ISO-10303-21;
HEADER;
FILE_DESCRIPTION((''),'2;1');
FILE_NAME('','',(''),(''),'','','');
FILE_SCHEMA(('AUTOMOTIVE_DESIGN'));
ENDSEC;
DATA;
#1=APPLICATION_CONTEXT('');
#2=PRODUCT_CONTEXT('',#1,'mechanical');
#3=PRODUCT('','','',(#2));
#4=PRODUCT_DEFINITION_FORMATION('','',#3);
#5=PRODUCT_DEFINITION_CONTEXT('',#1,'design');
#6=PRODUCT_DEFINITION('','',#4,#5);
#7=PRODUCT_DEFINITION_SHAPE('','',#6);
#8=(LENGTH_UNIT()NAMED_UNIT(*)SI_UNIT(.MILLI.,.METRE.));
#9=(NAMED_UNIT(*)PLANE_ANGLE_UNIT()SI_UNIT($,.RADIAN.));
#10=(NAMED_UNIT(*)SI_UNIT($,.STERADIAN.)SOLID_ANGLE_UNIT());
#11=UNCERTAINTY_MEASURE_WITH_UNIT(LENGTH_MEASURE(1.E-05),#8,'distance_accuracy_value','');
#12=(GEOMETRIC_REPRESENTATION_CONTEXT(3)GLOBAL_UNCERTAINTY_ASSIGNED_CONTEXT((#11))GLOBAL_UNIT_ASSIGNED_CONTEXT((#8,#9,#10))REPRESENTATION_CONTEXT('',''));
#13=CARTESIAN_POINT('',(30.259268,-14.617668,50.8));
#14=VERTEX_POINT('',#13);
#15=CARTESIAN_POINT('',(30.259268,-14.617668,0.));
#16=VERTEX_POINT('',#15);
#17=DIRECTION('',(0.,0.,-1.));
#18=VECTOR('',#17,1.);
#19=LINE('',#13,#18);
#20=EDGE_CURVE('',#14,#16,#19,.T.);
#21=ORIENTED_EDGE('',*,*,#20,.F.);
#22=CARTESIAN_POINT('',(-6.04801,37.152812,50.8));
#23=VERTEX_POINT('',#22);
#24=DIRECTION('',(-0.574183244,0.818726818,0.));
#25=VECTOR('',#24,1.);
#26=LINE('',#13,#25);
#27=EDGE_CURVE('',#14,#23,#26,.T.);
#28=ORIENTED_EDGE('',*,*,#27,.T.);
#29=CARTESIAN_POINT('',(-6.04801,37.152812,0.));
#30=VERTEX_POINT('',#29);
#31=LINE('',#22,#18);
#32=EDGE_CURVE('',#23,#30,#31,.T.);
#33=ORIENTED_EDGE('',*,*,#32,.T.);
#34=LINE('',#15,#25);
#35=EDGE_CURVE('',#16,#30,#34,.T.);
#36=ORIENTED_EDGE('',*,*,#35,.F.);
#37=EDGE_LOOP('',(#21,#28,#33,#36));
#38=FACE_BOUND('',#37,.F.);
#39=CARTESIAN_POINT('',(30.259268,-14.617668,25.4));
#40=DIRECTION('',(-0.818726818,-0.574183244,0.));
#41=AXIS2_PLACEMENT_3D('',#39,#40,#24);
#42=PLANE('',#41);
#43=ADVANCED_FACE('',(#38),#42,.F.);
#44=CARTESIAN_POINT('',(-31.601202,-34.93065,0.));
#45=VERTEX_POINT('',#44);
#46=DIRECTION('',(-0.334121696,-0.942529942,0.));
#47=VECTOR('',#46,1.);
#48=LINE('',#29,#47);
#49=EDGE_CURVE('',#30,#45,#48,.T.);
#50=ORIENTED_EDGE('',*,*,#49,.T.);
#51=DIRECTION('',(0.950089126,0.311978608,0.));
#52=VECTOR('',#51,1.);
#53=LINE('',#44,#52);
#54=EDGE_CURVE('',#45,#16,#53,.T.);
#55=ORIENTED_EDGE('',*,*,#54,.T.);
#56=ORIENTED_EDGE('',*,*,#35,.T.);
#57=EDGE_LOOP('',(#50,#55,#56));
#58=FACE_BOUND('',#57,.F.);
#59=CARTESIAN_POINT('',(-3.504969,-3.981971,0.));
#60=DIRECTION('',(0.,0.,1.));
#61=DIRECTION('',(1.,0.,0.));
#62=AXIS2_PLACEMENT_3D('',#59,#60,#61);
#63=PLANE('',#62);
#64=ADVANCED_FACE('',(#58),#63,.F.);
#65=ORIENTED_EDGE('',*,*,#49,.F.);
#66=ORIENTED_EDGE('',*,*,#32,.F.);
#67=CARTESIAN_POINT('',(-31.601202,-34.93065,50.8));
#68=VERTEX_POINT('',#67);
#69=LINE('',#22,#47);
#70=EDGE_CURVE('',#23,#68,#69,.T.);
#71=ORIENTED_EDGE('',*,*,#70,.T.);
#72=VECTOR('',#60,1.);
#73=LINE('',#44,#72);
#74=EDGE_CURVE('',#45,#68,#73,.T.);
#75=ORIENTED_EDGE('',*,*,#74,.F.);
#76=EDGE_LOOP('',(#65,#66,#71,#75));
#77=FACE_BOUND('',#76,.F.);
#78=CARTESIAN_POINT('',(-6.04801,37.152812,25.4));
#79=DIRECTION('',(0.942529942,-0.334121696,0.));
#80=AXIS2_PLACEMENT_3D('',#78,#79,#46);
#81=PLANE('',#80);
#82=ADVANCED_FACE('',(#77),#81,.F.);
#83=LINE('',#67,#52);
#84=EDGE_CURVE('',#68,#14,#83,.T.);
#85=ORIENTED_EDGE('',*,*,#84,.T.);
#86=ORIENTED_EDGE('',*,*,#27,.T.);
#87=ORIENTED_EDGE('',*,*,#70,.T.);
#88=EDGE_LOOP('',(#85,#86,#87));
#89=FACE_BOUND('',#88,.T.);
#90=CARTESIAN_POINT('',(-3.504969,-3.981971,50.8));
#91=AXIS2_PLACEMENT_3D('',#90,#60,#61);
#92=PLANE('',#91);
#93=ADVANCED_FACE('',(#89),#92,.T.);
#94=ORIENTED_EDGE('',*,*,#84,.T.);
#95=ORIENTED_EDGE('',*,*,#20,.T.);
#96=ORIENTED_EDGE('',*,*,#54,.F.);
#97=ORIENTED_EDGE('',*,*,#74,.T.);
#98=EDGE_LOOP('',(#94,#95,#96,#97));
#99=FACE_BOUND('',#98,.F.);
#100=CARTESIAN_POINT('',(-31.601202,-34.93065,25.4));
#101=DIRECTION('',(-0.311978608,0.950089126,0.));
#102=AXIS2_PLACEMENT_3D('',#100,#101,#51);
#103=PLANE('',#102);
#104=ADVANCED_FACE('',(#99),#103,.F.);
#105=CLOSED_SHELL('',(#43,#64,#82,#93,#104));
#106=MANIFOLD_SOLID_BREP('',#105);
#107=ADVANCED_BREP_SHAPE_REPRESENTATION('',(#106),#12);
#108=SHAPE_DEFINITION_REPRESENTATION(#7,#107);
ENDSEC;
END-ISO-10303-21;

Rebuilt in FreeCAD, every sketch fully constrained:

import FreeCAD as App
import Part
import Sketcher
from FreeCAD import Vector
Q = App.Units.Quantity


def add_polygon(sketch, points):
    """Adds a closed chain of lines whose ends are joined by coincident constraints."""
    first, n = sketch.GeometryCount, len(points)
    for a, b in zip(points, points[1:] + points[:1]):
        sketch.addGeometry(Part.LineSegment(App.Vector(*a, 0), App.Vector(*b, 0)), False)
    for i in range(n):
        sketch.addConstraint(Sketcher.Constraint("Coincident", first + i, 2, first + (i + 1) % n, 1))

doc = App.newDocument("Part")
body = doc.addObject("PartDesign::Body", "Body")

# Sketch on XY plane
sketch1 = doc.addObject("Sketcher::SketchObject", "Sketch")
body.addObject(sketch1)
sketch1.AttachmentSupport = (doc.XY_Plane, [""])
sketch1.MapMode = "FlatFace"
add_polygon(sketch1, [(-6, 37), (-32, -35), (30, -15)])  # lines 0-2
sketch1.addConstraint(Sketcher.Constraint("Distance", 2, Q("63.232911 mm")))
sketch1.addConstraint(Sketcher.Constraint("DistanceY", 0, 2, -1, 1, Q("34.93065 mm")))
sketch1.addConstraint(Sketcher.Constraint("DistanceX", 2, 2, -1, 1, Q("6.04801 mm")))
sketch1.addConstraint(Sketcher.Constraint("DistanceY", -1, 1, 2, 2, Q("37.152812 mm")))
sketch1.addConstraint(Sketcher.Constraint("DistanceX", 0, 2, 1, 2, Q("61.86047 mm")))
sketch1.addConstraint(Sketcher.Constraint("DistanceY", 0, 2, 1, 2, Q("20.312982 mm")))
pad1 = doc.addObject("PartDesign::Pad", "Pad")
body.addObject(pad1)
pad1.Profile = sketch1
pad1.Length = Q("1 in")

# Sketch on XY plane
sketch2 = doc.addObject("Sketcher::SketchObject", "Sketch001")
body.addObject(sketch2)
sketch2.AttachmentSupport = (doc.XY_Plane, [""])
sketch2.MapMode = "FlatFace"
sketch2.AttachmentOffset = App.Placement(Vector(0, 0, 1 * 25.4), App.Rotation())
add_polygon(sketch2, [(-6, 37), (-32, -35), (30, -15)])  # lines 0-2
sketch2.addConstraint(Sketcher.Constraint("Distance", 2, Q("63.232911 mm")))
sketch2.addConstraint(Sketcher.Constraint("DistanceY", 0, 2, -1, 1, Q("34.93065 mm")))
sketch2.addConstraint(Sketcher.Constraint("DistanceX", 2, 2, -1, 1, Q("6.04801 mm")))
sketch2.addConstraint(Sketcher.Constraint("DistanceY", -1, 1, 2, 2, Q("37.152812 mm")))
sketch2.addConstraint(Sketcher.Constraint("DistanceX", 0, 2, 1, 2, Q("61.86047 mm")))
sketch2.addConstraint(Sketcher.Constraint("DistanceY", 0, 2, 1, 2, Q("20.312982 mm")))
pad2 = doc.addObject("PartDesign::Pad", "Pad001")
body.addObject(pad2)
pad2.Profile = sketch2
pad2.Length = Q("1 in")

doc.recompute()
